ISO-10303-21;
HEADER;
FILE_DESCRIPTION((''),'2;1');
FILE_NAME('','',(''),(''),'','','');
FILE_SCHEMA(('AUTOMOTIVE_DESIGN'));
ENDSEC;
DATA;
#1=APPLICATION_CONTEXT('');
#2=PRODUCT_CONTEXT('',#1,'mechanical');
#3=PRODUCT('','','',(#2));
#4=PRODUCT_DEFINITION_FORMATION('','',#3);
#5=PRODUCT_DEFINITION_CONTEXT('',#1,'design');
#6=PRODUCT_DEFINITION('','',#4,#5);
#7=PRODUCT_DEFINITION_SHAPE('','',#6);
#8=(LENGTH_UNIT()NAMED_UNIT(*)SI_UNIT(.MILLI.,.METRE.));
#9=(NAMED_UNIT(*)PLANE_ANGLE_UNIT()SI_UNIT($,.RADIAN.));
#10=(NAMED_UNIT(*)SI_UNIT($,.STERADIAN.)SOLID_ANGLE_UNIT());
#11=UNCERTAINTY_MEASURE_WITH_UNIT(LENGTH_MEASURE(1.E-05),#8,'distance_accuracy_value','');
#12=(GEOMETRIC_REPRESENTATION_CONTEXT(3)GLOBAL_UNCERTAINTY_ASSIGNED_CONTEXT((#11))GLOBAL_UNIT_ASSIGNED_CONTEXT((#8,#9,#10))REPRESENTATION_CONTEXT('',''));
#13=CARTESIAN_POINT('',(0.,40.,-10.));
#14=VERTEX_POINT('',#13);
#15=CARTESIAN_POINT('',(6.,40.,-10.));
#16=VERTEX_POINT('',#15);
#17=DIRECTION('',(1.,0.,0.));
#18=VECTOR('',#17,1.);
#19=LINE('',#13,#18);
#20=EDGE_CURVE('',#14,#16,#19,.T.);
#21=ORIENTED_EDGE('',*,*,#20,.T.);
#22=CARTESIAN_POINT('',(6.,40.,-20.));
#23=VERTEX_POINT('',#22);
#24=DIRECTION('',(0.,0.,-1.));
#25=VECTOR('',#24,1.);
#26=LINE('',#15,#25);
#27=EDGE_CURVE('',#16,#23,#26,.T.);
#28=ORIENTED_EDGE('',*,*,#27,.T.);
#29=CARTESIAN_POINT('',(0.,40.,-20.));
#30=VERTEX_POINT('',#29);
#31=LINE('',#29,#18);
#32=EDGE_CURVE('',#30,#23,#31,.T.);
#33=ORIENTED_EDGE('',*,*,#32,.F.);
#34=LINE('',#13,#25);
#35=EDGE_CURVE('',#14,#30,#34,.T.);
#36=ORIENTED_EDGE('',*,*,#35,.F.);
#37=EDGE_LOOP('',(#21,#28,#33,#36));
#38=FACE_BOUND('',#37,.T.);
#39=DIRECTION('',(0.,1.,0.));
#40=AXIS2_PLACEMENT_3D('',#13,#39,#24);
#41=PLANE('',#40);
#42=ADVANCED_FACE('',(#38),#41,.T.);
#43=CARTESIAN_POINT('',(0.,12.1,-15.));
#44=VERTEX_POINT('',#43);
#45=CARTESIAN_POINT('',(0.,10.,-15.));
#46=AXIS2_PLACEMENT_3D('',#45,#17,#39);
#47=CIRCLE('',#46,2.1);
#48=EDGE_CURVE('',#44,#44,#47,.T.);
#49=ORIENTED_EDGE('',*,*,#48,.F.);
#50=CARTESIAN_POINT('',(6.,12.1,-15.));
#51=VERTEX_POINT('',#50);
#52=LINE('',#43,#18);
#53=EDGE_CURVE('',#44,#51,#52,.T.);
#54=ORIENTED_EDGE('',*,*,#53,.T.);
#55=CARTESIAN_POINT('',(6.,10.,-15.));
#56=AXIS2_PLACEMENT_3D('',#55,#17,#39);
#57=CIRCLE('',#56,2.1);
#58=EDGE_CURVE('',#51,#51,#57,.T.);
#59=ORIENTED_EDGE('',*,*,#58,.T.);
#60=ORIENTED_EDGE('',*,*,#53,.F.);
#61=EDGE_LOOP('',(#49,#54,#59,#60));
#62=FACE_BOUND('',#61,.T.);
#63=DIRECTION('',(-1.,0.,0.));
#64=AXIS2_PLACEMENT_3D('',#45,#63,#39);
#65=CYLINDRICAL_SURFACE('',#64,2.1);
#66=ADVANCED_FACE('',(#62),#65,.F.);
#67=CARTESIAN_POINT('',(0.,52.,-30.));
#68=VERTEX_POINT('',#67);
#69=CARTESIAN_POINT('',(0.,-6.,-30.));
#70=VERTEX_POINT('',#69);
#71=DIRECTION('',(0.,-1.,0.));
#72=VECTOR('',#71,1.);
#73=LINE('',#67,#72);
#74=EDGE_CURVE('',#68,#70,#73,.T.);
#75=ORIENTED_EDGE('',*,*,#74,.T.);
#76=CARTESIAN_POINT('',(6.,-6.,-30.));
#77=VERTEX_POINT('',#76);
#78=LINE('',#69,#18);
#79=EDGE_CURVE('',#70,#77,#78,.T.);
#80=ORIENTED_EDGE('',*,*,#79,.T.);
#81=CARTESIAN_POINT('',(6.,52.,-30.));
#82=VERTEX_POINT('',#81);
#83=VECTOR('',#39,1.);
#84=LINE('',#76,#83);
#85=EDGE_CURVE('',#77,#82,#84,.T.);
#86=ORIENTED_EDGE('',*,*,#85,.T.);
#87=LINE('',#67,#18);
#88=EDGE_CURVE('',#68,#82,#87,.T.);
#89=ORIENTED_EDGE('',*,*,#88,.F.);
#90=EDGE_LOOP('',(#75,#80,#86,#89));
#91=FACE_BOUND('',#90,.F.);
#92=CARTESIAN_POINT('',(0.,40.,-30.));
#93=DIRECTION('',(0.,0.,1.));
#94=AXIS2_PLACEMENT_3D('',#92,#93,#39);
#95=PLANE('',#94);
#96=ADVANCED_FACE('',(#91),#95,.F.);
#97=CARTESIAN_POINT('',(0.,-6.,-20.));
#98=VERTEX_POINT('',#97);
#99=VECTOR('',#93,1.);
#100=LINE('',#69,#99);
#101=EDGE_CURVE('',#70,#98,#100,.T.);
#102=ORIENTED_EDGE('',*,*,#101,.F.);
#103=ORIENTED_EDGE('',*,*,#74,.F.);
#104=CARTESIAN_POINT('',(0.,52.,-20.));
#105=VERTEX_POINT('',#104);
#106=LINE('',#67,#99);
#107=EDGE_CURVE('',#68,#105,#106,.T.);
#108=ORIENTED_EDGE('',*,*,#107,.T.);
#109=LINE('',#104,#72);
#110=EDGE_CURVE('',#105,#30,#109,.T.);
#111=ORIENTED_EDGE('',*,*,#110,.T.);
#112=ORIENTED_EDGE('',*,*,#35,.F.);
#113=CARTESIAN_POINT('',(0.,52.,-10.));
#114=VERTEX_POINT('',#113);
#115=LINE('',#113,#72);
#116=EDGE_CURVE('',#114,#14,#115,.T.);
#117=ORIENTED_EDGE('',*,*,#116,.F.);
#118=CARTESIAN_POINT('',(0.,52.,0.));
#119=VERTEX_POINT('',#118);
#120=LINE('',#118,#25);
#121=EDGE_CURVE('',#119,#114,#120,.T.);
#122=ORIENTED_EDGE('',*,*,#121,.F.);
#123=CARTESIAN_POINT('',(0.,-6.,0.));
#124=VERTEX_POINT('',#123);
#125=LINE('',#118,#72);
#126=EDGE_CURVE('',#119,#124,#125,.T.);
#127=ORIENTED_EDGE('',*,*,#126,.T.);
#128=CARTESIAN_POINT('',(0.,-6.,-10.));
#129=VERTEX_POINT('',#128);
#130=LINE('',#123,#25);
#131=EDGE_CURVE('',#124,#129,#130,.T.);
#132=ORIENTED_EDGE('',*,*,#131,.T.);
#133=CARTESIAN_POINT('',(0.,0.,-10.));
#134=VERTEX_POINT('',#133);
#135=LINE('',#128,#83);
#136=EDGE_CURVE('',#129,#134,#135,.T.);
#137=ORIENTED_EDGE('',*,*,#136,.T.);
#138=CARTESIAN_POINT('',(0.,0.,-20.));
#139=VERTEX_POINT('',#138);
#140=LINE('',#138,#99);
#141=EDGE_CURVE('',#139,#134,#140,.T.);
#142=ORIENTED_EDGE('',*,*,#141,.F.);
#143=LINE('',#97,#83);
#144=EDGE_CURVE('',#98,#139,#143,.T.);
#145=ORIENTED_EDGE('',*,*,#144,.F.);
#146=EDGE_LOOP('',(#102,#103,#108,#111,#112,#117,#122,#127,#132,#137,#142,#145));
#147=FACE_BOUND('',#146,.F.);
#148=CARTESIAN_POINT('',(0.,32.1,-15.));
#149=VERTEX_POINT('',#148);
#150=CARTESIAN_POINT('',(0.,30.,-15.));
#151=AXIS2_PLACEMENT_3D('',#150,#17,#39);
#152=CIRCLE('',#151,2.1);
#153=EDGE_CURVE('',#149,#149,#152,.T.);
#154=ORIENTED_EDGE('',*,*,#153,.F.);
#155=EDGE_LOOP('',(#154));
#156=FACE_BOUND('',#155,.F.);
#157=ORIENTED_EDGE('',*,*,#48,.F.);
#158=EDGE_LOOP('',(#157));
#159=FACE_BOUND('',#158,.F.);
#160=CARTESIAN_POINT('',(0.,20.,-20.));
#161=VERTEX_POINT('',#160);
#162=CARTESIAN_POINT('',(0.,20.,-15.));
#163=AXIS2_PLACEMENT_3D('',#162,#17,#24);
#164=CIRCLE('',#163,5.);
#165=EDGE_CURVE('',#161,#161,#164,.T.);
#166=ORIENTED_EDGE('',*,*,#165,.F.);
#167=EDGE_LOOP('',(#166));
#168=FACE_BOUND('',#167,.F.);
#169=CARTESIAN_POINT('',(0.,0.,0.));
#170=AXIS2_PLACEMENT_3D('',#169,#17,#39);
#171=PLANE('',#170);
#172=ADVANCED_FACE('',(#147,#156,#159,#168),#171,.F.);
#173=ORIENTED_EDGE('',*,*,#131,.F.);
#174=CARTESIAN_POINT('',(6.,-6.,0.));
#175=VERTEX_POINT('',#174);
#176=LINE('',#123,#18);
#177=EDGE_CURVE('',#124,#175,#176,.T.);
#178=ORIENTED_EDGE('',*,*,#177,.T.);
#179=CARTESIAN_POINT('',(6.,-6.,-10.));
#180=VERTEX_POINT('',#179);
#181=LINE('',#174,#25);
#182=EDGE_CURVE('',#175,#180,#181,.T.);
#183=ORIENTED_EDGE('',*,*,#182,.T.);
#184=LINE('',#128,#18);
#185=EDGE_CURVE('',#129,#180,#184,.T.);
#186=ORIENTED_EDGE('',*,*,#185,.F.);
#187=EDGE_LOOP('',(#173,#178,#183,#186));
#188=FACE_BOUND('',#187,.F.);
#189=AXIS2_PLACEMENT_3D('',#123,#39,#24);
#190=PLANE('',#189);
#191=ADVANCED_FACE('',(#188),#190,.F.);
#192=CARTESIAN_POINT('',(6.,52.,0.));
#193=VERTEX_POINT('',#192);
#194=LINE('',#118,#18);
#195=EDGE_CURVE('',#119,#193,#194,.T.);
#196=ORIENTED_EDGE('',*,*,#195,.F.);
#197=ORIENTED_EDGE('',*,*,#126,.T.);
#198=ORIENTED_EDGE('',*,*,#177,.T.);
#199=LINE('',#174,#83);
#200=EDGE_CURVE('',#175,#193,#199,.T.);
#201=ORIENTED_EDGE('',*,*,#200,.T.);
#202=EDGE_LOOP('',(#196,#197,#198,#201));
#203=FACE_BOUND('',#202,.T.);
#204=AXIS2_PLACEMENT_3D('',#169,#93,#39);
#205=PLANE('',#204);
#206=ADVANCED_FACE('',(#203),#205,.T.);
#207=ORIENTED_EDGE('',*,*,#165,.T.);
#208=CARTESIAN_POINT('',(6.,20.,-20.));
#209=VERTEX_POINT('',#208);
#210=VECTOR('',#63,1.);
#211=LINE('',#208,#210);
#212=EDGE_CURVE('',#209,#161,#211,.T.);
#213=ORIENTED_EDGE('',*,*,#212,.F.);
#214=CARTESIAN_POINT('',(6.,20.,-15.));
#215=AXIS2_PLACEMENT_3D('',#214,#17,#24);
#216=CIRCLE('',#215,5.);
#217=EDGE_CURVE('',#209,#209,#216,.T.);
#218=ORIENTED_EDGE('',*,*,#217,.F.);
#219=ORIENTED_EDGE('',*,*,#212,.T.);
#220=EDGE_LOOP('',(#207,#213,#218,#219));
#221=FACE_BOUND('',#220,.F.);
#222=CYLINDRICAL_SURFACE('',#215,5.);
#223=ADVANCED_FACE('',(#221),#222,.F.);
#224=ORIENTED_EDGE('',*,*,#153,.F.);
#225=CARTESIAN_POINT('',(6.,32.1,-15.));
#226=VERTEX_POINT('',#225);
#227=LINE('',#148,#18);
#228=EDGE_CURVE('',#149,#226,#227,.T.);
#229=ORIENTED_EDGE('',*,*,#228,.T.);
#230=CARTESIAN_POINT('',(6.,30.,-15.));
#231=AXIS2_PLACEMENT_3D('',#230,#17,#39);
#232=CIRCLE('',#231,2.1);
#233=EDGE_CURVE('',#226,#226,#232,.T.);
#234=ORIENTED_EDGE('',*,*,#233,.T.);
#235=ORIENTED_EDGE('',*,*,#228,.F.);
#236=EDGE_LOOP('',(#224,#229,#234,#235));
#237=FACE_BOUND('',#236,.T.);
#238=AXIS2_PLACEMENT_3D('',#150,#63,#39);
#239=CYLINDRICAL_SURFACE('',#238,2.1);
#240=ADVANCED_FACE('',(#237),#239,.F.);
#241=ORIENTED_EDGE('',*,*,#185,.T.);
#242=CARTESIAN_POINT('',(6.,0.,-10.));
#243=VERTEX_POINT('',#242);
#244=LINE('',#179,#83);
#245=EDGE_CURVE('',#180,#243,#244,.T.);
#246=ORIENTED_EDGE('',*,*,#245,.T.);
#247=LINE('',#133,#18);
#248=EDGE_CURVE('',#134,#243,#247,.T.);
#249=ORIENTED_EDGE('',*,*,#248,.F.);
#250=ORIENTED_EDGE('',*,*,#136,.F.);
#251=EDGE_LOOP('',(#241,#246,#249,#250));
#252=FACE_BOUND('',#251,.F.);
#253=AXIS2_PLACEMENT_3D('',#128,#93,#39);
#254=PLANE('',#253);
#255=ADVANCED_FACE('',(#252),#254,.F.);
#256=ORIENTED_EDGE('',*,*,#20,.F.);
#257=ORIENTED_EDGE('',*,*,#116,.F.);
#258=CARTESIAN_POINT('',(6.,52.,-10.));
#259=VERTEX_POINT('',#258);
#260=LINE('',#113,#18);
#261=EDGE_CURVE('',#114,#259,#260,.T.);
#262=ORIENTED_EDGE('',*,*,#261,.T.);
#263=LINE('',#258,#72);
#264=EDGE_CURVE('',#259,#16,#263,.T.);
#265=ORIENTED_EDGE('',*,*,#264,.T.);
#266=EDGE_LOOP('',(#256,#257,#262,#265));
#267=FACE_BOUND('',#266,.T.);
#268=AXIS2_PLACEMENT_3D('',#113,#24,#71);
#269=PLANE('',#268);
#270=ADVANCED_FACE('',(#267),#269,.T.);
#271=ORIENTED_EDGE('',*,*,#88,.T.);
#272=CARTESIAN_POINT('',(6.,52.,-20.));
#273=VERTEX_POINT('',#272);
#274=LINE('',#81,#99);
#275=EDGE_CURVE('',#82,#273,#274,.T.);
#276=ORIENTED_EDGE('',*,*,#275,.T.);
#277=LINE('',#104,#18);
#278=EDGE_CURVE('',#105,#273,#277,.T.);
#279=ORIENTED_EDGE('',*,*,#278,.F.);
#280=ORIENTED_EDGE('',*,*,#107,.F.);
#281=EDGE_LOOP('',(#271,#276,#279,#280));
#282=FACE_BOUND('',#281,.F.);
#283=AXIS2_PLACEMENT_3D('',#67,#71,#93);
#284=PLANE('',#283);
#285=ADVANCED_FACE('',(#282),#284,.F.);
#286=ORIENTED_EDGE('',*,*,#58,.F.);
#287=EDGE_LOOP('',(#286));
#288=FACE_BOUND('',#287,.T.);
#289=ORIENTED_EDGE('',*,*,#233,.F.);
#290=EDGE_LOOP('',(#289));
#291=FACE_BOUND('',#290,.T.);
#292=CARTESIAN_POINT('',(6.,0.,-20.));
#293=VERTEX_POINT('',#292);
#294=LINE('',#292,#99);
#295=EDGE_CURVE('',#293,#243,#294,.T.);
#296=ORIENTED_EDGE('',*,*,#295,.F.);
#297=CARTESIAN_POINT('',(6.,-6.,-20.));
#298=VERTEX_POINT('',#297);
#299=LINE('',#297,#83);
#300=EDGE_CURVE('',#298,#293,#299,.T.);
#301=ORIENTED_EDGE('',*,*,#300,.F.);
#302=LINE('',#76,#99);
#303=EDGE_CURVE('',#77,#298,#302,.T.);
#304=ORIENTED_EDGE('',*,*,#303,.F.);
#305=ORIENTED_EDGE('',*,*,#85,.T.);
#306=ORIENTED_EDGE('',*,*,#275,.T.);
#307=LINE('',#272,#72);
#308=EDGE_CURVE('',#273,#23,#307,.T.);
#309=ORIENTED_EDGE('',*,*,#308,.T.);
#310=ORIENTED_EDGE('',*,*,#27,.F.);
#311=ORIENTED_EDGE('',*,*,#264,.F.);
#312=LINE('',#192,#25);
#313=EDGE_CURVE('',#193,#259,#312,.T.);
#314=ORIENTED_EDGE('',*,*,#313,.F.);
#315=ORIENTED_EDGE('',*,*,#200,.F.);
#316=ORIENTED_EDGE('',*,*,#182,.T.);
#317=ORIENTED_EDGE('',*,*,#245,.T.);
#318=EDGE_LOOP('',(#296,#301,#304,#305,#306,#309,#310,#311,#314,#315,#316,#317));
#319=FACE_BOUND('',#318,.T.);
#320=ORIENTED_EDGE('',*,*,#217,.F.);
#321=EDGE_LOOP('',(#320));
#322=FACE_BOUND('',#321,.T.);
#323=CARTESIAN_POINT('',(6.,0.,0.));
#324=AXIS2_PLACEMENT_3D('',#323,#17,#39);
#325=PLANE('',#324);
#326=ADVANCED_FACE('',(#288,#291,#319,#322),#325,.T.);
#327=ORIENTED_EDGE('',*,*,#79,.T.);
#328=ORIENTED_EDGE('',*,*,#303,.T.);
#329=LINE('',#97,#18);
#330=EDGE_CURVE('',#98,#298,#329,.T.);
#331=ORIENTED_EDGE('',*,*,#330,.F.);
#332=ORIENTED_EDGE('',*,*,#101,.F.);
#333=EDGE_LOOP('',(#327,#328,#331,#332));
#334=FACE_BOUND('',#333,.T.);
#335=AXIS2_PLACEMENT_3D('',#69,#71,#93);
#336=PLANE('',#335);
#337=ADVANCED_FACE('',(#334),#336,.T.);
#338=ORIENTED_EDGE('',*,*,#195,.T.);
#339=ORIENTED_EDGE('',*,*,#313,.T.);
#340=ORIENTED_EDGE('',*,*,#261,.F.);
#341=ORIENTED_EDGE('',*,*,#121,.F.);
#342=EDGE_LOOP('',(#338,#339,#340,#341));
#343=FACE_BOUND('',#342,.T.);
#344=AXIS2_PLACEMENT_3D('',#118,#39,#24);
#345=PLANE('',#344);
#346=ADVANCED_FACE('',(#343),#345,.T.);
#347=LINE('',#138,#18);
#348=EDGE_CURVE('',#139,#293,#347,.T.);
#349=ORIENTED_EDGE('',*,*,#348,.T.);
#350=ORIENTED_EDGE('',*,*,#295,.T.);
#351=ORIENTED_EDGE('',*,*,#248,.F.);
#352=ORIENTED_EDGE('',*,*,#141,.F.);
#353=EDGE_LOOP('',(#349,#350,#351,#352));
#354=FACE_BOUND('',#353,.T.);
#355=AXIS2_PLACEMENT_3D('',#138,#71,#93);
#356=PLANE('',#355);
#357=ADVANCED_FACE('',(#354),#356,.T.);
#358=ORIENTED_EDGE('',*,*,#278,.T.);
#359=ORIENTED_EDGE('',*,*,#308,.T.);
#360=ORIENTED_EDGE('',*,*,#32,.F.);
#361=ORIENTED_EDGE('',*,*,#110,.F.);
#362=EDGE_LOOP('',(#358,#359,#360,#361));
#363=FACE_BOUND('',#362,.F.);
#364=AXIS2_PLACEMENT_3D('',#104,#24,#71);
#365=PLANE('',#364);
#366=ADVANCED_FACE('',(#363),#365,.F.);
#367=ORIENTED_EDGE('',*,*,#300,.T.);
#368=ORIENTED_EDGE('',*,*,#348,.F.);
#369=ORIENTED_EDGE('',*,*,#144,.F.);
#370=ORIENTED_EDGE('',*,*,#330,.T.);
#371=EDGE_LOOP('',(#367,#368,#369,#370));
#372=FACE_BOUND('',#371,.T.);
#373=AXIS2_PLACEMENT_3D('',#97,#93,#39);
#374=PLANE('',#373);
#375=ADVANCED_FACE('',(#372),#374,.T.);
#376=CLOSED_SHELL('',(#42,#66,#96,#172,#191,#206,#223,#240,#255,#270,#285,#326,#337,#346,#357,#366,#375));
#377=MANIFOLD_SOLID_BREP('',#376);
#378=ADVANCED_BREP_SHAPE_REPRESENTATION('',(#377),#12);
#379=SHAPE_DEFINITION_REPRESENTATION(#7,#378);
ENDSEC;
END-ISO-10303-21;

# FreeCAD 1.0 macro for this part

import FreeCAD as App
import Part
import Sketcher


def add_polygon(sketch, points):
    """Adds a closed chain of lines whose ends are joined by coincident constraints."""
    first, n = sketch.GeometryCount, len(points)
    for a, b in zip(points, points[1:] + points[:1]):
        sketch.addGeometry(Part.LineSegment(App.Vector(*a, 0), App.Vector(*b, 0)), False)
    for i in range(n):
        sketch.addConstraint(Sketcher.Constraint("Coincident", first + i, 2, first + (i + 1) % n, 1))

doc = App.newDocument("Part")
body = doc.addObject("PartDesign::Body", "Body")

sketch1 = body.newObject("Sketcher::SketchObject", "Sketch")
sketch1.AttachmentSupport = (doc.getObject("YZ_Plane"), [""])
sketch1.MapMode = "FlatFace"
add_polygon(sketch1, [(-6, 0), (-6, -10), (0, -10), (0, -20), (-6, -20), (-6, -30), (52, -30), (52, -20), (40, -20), (40, -10), (52, -10), (52, 0)])
sketch1.addGeometry(Part.Circle(App.Vector(10, -15, 0), App.Vector(0, 0, 1), 2.1), False)
sketch1.addGeometry(Part.Circle(App.Vector(30, -15, 0), App.Vector(0, 0, 1), 2.1), False)
sketch1.addConstraint(Sketcher.Constraint("Vertical", 0))
sketch1.addConstraint(Sketcher.Constraint("Horizontal", 1))
sketch1.addConstraint(Sketcher.Constraint("Vertical", 2))
sketch1.addConstraint(Sketcher.Constraint("Horizontal", 3))
sketch1.addConstraint(Sketcher.Constraint("Vertical", 4))
sketch1.addConstraint(Sketcher.Constraint("Horizontal", 5))
sketch1.addConstraint(Sketcher.Constraint("Vertical", 6))
sketch1.addConstraint(Sketcher.Constraint("Horizontal", 7))
sketch1.addConstraint(Sketcher.Constraint("Vertical", 8))
sketch1.addConstraint(Sketcher.Constraint("Horizontal", 9))
sketch1.addConstraint(Sketcher.Constraint("Vertical", 10))
sketch1.addConstraint(Sketcher.Constraint("Horizontal", 11))
sketch1.addConstraint(Sketcher.Constraint("Equal", 12, 13))
sketch1.addConstraint(Sketcher.Constraint("PointOnObject", 1, 2, -2))
sketch1.addConstraint(Sketcher.Constraint("PointOnObject", 10, 2, -1))
sketch1.addConstraint(Sketcher.Constraint("Horizontal", 12, 3, 13, 3))
sketch1.addConstraint(Sketcher.Constraint("Horizontal", 3, 2, 6, 2))
sketch1.addConstraint(Sketcher.Constraint("Horizontal", 1, 2, 8, 2))
sketch1.addConstraint(Sketcher.Constraint("Vertical", 0, 2, 3, 2))
sketch1.addConstraint(Sketcher.Constraint("Vertical", 6, 2, 9, 2))
sketch1.addConstraint(Sketcher.Constraint("Equal", 0, 2))
sketch1.addConstraint(Sketcher.Constraint("Equal", 2, 4))
sketch1.addConstraint(Sketcher.Constraint("Diameter", 12, 4.2))
sketch1.addConstraint(Sketcher.Constraint("DistanceX", 1, 1, 1, 2, 6.0))
sketch1.addConstraint(Sketcher.Constraint("DistanceX", 7, 2, 7, 1, 12.0))
sketch1.addConstraint(Sketcher.Constraint("DistanceY", 0, 2, 0, 1, 10.0))
sketch1.addConstraint(Sketcher.Constraint("DistanceX", -1, 1, 12, 3, 10.0))
sketch1.addConstraint(Sketcher.Constraint("DistanceX", -1, 1, 13, 3, 30.0))
sketch1.addConstraint(Sketcher.Constraint("DistanceX", -1, 1, 7, 2, 40.0))
sketch1.addConstraint(Sketcher.Constraint("DistanceY", 12, 3, -1, 1, 15.0))
pad1 = body.newObject("PartDesign::Pad", "Pad")
pad1.Profile = sketch1
pad1.Length = 6

sketch2 = body.newObject("Sketcher::SketchObject", "Sketch001")
sketch2.AttachmentSupport = (doc.getObject("YZ_Plane"), [""])
sketch2.MapMode = "FlatFace"
sketch2.AttachmentOffset = App.Placement(App.Vector(0, 0, 6), App.Rotation())
sketch2.addGeometry(Part.Circle(App.Vector(20, -15, 0), App.Vector(0, 0, 1), 5), False)
sketch2.addConstraint(Sketcher.Constraint("Diameter", 0, 10.0))
sketch2.addConstraint(Sketcher.Constraint("DistanceX", -1, 1, 0, 3, 20.0))
sketch2.addConstraint(Sketcher.Constraint("DistanceY", 0, 3, -1, 1, 15.0))
pocket1 = body.newObject("PartDesign::Pocket", "Pocket")
pocket1.Profile = sketch2
pocket1.Length = 6

doc.recompute()
